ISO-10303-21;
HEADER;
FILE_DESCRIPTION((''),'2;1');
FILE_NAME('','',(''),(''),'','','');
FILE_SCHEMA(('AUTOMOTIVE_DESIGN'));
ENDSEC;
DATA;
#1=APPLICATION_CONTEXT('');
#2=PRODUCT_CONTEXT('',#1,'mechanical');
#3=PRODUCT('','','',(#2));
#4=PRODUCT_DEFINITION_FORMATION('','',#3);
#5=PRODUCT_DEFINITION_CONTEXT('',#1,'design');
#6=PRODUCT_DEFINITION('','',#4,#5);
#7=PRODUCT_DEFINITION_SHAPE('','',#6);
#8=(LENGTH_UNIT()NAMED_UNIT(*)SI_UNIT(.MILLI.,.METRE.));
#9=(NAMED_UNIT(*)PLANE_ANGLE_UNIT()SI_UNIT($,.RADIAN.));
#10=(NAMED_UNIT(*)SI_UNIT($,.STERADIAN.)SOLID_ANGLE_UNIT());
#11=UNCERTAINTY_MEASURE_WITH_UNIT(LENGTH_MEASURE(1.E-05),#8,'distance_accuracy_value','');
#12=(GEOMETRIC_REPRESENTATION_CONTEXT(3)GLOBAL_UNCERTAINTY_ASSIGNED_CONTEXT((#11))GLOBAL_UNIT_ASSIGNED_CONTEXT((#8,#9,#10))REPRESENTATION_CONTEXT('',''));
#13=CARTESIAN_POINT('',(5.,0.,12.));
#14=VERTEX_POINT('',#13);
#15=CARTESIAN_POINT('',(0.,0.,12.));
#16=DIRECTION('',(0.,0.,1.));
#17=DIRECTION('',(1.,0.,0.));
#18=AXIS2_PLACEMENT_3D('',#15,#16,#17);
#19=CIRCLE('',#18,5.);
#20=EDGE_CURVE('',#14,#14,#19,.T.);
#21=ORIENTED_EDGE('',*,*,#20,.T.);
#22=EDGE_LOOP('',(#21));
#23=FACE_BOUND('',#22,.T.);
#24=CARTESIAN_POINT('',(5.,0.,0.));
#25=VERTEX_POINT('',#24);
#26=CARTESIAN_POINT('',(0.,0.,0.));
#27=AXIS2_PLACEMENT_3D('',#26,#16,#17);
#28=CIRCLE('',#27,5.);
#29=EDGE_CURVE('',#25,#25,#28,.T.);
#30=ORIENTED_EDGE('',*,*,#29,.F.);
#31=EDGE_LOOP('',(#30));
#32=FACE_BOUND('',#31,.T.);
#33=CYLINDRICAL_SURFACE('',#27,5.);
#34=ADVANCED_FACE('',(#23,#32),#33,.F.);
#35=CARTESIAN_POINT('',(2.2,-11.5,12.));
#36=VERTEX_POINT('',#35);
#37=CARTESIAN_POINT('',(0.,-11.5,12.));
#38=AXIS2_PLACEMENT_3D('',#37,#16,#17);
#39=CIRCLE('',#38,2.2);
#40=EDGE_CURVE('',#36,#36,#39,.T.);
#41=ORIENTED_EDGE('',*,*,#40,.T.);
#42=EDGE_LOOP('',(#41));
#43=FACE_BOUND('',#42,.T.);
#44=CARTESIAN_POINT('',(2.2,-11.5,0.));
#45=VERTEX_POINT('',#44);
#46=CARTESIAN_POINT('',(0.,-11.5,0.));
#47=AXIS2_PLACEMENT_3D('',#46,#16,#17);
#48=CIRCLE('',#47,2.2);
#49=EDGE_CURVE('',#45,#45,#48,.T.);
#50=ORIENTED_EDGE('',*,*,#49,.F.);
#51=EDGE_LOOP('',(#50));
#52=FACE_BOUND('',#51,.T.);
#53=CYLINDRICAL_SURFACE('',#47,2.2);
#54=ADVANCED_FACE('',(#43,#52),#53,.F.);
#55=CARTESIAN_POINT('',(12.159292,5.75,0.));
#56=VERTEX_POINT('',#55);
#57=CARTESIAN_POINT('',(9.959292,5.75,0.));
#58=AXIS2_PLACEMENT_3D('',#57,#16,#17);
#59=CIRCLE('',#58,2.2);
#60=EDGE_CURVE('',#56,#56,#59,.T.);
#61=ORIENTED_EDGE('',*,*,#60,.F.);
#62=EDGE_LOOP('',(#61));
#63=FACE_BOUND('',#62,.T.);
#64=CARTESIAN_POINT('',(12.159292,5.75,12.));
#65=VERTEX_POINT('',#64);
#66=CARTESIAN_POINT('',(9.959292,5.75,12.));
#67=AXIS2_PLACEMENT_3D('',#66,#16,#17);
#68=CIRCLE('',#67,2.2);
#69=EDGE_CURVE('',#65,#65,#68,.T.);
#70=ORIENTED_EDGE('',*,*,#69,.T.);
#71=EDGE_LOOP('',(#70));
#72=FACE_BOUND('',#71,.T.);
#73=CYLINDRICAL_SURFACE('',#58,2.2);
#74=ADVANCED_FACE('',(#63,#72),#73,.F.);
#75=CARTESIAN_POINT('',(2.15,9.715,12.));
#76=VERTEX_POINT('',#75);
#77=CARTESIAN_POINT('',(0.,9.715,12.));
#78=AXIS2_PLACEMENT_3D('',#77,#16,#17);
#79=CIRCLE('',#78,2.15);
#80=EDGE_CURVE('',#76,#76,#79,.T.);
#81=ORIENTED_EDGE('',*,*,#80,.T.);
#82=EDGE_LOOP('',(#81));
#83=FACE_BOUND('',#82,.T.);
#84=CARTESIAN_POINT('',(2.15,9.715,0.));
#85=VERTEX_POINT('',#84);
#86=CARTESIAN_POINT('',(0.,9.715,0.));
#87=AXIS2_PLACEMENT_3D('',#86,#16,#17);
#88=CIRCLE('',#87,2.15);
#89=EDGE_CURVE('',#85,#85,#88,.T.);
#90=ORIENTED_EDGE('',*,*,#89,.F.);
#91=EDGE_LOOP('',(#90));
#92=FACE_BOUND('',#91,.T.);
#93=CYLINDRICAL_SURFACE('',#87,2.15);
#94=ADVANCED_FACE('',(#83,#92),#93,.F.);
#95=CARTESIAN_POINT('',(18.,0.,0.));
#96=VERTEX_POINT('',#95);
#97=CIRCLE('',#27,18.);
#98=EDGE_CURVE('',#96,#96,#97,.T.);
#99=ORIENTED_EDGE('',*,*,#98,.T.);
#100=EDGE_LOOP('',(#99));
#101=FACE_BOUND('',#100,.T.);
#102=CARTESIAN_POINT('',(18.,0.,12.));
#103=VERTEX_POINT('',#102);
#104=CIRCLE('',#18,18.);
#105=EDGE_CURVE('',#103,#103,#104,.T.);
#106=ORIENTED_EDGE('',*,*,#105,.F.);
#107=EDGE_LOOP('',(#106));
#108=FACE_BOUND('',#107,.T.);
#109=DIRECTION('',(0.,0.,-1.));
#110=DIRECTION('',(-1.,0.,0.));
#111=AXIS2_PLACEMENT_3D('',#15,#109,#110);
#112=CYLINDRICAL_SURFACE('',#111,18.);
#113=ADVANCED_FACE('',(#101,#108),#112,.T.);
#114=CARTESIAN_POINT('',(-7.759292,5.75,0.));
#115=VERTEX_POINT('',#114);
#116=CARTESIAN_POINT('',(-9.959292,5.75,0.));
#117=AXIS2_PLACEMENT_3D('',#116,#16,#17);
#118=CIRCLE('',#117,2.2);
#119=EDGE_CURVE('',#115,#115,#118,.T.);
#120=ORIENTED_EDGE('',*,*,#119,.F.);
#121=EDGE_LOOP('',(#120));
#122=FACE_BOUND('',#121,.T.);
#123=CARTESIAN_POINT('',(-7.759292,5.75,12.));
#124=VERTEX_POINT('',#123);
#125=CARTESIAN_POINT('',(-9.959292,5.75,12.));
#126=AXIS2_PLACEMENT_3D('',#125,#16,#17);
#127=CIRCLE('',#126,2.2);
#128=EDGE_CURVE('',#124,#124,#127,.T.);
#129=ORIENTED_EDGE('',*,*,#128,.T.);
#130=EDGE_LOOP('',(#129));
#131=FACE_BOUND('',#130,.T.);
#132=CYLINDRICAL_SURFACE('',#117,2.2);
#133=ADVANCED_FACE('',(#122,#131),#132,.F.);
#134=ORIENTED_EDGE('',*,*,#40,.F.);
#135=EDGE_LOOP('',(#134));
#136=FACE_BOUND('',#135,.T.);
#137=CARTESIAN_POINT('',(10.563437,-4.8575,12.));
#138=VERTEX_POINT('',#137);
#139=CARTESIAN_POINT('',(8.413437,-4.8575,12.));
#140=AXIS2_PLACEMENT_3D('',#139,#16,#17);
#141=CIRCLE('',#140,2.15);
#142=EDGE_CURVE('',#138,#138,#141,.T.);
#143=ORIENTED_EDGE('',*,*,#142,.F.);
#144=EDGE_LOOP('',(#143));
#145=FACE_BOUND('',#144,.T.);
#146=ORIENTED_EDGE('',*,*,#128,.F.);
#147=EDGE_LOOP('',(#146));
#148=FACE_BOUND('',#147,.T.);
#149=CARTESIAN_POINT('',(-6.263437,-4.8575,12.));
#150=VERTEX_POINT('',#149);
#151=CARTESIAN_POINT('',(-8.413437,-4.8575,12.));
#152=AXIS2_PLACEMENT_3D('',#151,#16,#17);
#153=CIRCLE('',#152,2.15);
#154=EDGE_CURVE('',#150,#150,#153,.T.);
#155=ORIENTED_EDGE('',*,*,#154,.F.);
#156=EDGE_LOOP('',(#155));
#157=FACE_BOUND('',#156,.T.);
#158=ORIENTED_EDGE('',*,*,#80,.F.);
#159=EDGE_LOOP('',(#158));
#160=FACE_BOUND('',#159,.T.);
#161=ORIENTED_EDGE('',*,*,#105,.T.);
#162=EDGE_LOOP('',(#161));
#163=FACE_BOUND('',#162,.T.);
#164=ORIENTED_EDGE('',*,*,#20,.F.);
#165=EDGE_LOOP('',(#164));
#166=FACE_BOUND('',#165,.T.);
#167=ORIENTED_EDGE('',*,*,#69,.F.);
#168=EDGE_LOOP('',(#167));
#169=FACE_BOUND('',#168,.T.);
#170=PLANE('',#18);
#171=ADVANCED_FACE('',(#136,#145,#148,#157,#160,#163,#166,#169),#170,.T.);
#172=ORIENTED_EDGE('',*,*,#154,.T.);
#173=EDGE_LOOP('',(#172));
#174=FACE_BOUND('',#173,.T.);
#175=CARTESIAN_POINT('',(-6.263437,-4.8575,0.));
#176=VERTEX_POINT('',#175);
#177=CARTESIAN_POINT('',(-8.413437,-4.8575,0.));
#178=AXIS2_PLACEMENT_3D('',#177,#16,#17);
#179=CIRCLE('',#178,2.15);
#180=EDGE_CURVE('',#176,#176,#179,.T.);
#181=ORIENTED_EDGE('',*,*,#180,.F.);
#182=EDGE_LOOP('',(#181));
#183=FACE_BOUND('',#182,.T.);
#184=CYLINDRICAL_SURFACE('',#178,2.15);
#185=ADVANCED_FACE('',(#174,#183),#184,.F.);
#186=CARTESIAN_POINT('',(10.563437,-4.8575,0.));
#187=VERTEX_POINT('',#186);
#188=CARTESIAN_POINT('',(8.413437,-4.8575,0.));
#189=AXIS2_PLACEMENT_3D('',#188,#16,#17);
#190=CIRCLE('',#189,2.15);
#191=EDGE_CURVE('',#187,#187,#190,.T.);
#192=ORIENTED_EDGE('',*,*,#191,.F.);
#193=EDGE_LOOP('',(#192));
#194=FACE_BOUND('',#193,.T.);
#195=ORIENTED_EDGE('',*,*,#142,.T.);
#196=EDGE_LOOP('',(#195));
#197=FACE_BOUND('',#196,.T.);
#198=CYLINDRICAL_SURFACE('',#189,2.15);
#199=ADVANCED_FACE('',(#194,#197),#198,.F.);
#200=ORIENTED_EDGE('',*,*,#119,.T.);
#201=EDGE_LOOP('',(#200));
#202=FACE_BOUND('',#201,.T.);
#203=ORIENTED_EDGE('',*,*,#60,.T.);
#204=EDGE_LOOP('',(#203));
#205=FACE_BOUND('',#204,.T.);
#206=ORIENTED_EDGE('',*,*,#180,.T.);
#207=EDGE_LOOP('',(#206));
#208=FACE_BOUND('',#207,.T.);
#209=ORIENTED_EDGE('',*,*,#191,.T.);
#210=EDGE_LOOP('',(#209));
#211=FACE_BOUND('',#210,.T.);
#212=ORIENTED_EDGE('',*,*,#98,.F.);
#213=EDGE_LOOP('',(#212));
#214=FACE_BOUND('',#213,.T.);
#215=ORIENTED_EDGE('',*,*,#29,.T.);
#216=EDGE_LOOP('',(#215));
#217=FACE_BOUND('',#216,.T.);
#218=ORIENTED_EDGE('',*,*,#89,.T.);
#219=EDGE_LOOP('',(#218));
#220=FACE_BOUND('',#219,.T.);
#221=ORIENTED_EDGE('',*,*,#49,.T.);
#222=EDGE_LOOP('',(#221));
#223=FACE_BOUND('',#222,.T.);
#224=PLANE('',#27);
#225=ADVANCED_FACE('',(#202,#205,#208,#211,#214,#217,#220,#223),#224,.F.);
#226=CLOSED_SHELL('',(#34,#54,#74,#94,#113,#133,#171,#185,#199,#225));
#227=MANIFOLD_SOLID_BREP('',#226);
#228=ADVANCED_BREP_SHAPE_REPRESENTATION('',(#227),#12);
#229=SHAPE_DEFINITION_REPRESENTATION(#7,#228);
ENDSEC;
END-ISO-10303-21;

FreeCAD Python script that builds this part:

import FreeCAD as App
import Part
import Sketcher
from FreeCAD import Vector

doc = App.newDocument("Part")
body = doc.addObject("PartDesign::Body", "Body")

sketch1 = body.newObject("Sketcher::SketchObject", "Sketch")
sketch1.AttachmentSupport = (doc.getObject("XY_Plane"), [""])
sketch1.MapMode = "FlatFace"
sketch1.addGeometry(Part.Circle(Vector(0, 0, 0), Vector(0, 0, 1), 18), False)
sketch1.addConstraint(Sketcher.Constraint("Coincident", 0, 3, -1, 1))
sketch1.addConstraint(Sketcher.Constraint("Diameter", 0, 36.0))
pad1 = body.newObject("PartDesign::Pad", "Pad")
pad1.Profile = sketch1
pad1.Length = 12

sketch2 = body.newObject("Sketcher::SketchObject", "Sketch001")
sketch2.AttachmentSupport = (doc.getObject("XY_Plane"), [""])
sketch2.MapMode = "FlatFace"
sketch2.AttachmentOffset = App.Placement(Vector(0, 0, 12), App.Rotation())
sketch2.addGeometry(Part.Circle(Vector(0, 9.7, 0), Vector(0, 0, 1), 2.1), False)
sketch2.addGeometry(Part.Circle(Vector(8.4, -4.9, 0), Vector(0, 0, 1), 2.1), False)
sketch2.addGeometry(Part.Circle(Vector(-8.4, -4.9, 0), Vector(0, 0, 1), 2.1), False)
sketch2.addGeometry(Part.Circle(Vector(10, 5.8, 0), Vector(0, 0, 1), 2.2), False)
sketch2.addGeometry(Part.Circle(Vector(0, -11.5, 0), Vector(0, 0, 1), 2.2), False)
sketch2.addGeometry(Part.Circle(Vector(-10, 5.8, 0), Vector(0, 0, 1), 2.2), False)
sketch2.addConstraint(Sketcher.Constraint("Equal", 0, 1))
sketch2.addConstraint(Sketcher.Constraint("Equal", 1, 2))
sketch2.addConstraint(Sketcher.Constraint("Equal", 3, 4))
sketch2.addConstraint(Sketcher.Constraint("Equal", 4, 5))
sketch2.addConstraint(Sketcher.Constraint("Symmetric", 1, 3, 2, 3, -2))
sketch2.addConstraint(Sketcher.Constraint("Symmetric", 3, 3, 5, 3, -2))
sketch2.addConstraint(Sketcher.Constraint("PointOnObject", 0, 3, -2))
sketch2.addConstraint(Sketcher.Constraint("PointOnObject", 4, 3, -2))
sketch2.addConstraint(Sketcher.Constraint("Diameter", 0, 4.3))
sketch2.addConstraint(Sketcher.Constraint("Diameter", 3, 4.4))
sketch2.addConstraint(Sketcher.Constraint("DistanceY", 4, 3, -1, 1, 11.5))
sketch2.addConstraint(Sketcher.Constraint("DistanceY", -1, 1, 3, 3, 5.75))
sketch2.addConstraint(Sketcher.Constraint("DistanceY", -1, 1, 0, 3, 9.715))
sketch2.addConstraint(Sketcher.Constraint("DistanceY", 1, 3, -1, 1, 4.8575))
sketch2.addConstraint(Sketcher.Constraint("DistanceX", 2, 3, 3, 3, 18.372729))
sketch2.addConstraint(Sketcher.Constraint("DistanceX", -1, 1, 1, 3, 8.413437))
pocket1 = body.newObject("PartDesign::Pocket", "Pocket")
pocket1.Profile = sketch2
pocket1.Type = "ThroughAll"

sketch3 = body.newObject("Sketcher::SketchObject", "Sketch002")
sketch3.AttachmentSupport = (doc.getObject("XY_Plane"), [""])
sketch3.MapMode = "FlatFace"
sketch3.AttachmentOffset = App.Placement(Vector(0, 0, 12), App.Rotation())
sketch3.addGeometry(Part.Circle(Vector(0, 0, 0), Vector(0, 0, 1), 5), False)
sketch3.addConstraint(Sketcher.Constraint("Coincident", 0, 3, -1, 1))
sketch3.addConstraint(Sketcher.Constraint("Diameter", 0, 10.0))
pocket2 = body.newObject("PartDesign::Pocket", "Pocket001")
pocket2.Profile = sketch3
pocket2.Type = "ThroughAll"

doc.recompute()
